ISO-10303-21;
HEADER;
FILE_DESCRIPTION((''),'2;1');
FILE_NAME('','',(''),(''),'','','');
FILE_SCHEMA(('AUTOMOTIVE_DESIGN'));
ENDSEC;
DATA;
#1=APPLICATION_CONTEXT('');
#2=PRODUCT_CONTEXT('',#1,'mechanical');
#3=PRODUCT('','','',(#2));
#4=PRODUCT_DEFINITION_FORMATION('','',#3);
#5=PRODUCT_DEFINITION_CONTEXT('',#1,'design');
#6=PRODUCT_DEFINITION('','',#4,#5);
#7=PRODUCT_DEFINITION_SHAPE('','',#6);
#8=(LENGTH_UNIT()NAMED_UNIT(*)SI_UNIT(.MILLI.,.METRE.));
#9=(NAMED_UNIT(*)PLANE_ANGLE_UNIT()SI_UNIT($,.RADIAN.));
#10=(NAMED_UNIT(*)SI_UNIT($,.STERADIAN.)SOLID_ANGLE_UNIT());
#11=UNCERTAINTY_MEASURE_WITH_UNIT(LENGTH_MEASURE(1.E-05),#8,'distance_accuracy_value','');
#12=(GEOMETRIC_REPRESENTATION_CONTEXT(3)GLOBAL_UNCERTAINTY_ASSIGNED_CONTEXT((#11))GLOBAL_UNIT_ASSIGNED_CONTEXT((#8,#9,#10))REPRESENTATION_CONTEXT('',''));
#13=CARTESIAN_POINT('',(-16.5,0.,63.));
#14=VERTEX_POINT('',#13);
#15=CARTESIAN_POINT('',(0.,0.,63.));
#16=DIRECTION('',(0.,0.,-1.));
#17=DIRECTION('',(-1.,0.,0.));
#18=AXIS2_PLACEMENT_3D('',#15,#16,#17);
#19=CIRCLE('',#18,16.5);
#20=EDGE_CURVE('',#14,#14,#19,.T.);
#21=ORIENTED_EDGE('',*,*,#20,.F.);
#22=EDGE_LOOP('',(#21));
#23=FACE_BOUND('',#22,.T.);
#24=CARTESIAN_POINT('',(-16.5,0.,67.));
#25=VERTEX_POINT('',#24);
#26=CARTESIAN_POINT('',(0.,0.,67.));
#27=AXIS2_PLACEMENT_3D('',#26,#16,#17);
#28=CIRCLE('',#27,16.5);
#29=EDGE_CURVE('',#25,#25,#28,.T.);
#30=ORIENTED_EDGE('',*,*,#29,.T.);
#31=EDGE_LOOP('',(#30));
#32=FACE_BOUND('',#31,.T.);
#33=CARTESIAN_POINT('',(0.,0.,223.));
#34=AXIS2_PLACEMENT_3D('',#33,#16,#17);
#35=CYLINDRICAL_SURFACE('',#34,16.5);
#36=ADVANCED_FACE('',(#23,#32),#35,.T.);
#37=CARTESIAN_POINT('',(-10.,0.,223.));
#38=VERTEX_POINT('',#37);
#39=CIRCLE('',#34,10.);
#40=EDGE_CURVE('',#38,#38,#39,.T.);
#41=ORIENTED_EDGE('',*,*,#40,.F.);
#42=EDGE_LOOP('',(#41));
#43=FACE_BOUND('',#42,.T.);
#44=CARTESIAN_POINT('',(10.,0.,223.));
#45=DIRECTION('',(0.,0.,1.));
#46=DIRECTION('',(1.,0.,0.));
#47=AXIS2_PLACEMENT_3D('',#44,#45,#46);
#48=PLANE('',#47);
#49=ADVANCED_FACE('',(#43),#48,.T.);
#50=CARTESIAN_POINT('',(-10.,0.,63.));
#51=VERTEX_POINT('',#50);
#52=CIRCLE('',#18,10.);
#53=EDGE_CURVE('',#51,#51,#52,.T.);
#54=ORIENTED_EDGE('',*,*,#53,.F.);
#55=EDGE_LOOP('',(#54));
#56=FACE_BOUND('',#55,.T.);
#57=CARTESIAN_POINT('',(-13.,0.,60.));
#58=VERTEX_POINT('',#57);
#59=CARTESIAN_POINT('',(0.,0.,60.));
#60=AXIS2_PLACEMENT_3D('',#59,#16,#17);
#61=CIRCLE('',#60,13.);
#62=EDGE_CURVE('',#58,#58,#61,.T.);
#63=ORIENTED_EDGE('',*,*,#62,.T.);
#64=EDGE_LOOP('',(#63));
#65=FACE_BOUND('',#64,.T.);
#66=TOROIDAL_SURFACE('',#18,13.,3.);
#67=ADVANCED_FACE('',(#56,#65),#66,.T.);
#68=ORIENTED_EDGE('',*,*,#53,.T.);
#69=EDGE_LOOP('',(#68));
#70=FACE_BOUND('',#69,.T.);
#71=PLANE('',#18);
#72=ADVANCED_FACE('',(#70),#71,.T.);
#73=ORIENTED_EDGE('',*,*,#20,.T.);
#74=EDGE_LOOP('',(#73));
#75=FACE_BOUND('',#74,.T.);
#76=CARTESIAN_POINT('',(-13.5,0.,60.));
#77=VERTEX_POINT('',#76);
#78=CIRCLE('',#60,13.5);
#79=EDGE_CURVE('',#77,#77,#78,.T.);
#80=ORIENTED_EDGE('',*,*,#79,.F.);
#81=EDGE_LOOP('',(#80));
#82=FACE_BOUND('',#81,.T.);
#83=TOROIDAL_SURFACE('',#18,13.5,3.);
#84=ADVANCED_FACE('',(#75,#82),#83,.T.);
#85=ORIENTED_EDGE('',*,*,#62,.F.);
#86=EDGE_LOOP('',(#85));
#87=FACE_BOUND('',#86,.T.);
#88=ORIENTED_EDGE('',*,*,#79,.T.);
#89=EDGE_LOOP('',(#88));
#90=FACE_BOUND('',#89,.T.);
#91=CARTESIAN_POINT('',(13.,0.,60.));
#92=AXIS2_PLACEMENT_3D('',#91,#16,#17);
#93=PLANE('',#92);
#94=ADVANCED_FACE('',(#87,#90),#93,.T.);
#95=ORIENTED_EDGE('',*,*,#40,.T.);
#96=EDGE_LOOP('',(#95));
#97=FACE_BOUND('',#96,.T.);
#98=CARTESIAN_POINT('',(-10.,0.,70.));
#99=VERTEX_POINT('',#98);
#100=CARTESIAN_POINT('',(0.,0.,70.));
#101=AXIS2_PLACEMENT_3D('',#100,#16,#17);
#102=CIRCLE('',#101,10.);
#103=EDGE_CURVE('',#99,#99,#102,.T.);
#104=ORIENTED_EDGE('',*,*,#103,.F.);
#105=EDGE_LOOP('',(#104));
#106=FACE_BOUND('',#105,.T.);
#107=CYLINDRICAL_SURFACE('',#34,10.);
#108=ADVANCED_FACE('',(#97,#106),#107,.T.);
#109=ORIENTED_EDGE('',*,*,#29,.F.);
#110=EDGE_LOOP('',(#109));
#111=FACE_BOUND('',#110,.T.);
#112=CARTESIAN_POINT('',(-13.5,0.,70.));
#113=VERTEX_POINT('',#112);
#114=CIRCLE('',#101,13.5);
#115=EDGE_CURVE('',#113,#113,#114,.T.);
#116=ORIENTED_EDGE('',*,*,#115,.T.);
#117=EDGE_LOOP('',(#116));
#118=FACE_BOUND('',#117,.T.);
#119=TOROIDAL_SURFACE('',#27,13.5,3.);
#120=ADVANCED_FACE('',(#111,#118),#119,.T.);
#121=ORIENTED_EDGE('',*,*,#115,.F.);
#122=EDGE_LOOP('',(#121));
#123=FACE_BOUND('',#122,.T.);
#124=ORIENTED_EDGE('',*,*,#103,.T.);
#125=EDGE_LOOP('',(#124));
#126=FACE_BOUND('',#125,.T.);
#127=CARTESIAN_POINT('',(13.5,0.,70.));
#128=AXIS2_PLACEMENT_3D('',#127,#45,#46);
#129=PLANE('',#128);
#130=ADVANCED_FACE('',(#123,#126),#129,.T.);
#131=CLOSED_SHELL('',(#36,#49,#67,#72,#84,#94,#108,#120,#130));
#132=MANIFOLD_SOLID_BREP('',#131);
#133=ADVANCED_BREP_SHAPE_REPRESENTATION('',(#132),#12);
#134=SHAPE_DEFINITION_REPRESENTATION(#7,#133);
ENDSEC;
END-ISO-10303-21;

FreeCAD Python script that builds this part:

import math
import FreeCAD as App
import Part
import Sketcher

doc = App.newDocument("Part")
body = doc.addObject("PartDesign::Body", "Body")

sketch1 = body.newObject("Sketcher::SketchObject", "Sketch")
sketch1.AttachmentSupport = (doc.getObject("XZ_Plane"), [""])
sketch1.MapMode = "FlatFace"
sketch1.addGeometry(Part.LineSegment(App.Vector(10, 223, 0), App.Vector(0, 223, 0)), False)
sketch1.addGeometry(Part.LineSegment(App.Vector(0, 223, 0), App.Vector(0, 63, 0)), False)
sketch1.addGeometry(Part.LineSegment(App.Vector(0, 63, 0), App.Vector(10, 63, 0)), False)
sketch1.addGeometry(Part.ArcOfCircle(Part.Circle(App.Vector(13, 63, 0), App.Vector(0, 0, 1), 3), math.radians(180), math.radians(270)), False)
sketch1.addGeometry(Part.LineSegment(App.Vector(13, 60, 0), App.Vector(13.5, 60, 0)), False)
sketch1.addGeometry(Part.ArcOfCircle(Part.Circle(App.Vector(13.5, 63, 0), App.Vector(0, 0, 1), 3), math.radians(-90), math.radians(0)), False)
sketch1.addGeometry(Part.LineSegment(App.Vector(16.5, 63, 0), App.Vector(16.5, 67, 0)), False)
sketch1.addGeometry(Part.ArcOfCircle(Part.Circle(App.Vector(13.5, 67, 0), App.Vector(0, 0, 1), 3), math.radians(0), math.radians(90)), False)
sketch1.addGeometry(Part.LineSegment(App.Vector(13.5, 70, 0), App.Vector(10, 70, 0)), False)
sketch1.addGeometry(Part.LineSegment(App.Vector(10, 70, 0), App.Vector(10, 223, 0)), False)
sketch1.addConstraint(Sketcher.Constraint("Coincident", 0, 2, 1, 1))
sketch1.addConstraint(Sketcher.Constraint("Coincident", 1, 2, 2, 1))
sketch1.addConstraint(Sketcher.Constraint("Coincident", 2, 2, 3, 1))
sketch1.addConstraint(Sketcher.Constraint("Tangent", 3, 2, 4, 1))
sketch1.addConstraint(Sketcher.Constraint("Tangent", 4, 2, 5, 1))
sketch1.addConstraint(Sketcher.Constraint("Tangent", 5, 2, 6, 1))
sketch1.addConstraint(Sketcher.Constraint("Tangent", 6, 2, 7, 1))
sketch1.addConstraint(Sketcher.Constraint("Tangent", 7, 2, 8, 1))
sketch1.addConstraint(Sketcher.Constraint("Coincident", 8, 2, 9, 1))
sketch1.addConstraint(Sketcher.Constraint("Coincident", 9, 2, 0, 1))
sketch1.addConstraint(Sketcher.Constraint("Horizontal", 0))
sketch1.addConstraint(Sketcher.Constraint("Vertical", 1))
sketch1.addConstraint(Sketcher.Constraint("Horizontal", 2))
sketch1.addConstraint(Sketcher.Constraint("Horizontal", 4))
sketch1.addConstraint(Sketcher.Constraint("Vertical", 6))
sketch1.addConstraint(Sketcher.Constraint("Horizontal", 8))
sketch1.addConstraint(Sketcher.Constraint("Vertical", 9))
sketch1.addConstraint(Sketcher.Constraint("Equal", 3, 5))
sketch1.addConstraint(Sketcher.Constraint("Equal", 5, 7))
sketch1.addConstraint(Sketcher.Constraint("PointOnObject", 0, 2, -2))
sketch1.addConstraint(Sketcher.Constraint("Horizontal", 5, 3, 1, 2))
sketch1.addConstraint(Sketcher.Constraint("Vertical", 2, 2, 8, 2))
sketch1.addConstraint(Sketcher.Constraint("Radius", 3, 3.0))
sketch1.addConstraint(Sketcher.Constraint("DistanceX", 0, 2, 0, 1, 10.0))
sketch1.addConstraint(Sketcher.Constraint("DistanceY", 1, 2, 1, 1, 160.0))
sketch1.addConstraint(Sketcher.Constraint("DistanceY", 6, 1, 6, 2, 4.0))
sketch1.addConstraint(Sketcher.Constraint("DistanceX", 4, 1, 4, 2, 0.5))
sketch1.addConstraint(Sketcher.Constraint("DistanceY", -1, 1, 3, 3, 63.0))
revolution = body.newObject("PartDesign::Revolution", "Revolution")
revolution.Profile = sketch1
revolution.ReferenceAxis = (sketch1, ["V_Axis"])
revolution.Angle = 360

doc.recompute()
